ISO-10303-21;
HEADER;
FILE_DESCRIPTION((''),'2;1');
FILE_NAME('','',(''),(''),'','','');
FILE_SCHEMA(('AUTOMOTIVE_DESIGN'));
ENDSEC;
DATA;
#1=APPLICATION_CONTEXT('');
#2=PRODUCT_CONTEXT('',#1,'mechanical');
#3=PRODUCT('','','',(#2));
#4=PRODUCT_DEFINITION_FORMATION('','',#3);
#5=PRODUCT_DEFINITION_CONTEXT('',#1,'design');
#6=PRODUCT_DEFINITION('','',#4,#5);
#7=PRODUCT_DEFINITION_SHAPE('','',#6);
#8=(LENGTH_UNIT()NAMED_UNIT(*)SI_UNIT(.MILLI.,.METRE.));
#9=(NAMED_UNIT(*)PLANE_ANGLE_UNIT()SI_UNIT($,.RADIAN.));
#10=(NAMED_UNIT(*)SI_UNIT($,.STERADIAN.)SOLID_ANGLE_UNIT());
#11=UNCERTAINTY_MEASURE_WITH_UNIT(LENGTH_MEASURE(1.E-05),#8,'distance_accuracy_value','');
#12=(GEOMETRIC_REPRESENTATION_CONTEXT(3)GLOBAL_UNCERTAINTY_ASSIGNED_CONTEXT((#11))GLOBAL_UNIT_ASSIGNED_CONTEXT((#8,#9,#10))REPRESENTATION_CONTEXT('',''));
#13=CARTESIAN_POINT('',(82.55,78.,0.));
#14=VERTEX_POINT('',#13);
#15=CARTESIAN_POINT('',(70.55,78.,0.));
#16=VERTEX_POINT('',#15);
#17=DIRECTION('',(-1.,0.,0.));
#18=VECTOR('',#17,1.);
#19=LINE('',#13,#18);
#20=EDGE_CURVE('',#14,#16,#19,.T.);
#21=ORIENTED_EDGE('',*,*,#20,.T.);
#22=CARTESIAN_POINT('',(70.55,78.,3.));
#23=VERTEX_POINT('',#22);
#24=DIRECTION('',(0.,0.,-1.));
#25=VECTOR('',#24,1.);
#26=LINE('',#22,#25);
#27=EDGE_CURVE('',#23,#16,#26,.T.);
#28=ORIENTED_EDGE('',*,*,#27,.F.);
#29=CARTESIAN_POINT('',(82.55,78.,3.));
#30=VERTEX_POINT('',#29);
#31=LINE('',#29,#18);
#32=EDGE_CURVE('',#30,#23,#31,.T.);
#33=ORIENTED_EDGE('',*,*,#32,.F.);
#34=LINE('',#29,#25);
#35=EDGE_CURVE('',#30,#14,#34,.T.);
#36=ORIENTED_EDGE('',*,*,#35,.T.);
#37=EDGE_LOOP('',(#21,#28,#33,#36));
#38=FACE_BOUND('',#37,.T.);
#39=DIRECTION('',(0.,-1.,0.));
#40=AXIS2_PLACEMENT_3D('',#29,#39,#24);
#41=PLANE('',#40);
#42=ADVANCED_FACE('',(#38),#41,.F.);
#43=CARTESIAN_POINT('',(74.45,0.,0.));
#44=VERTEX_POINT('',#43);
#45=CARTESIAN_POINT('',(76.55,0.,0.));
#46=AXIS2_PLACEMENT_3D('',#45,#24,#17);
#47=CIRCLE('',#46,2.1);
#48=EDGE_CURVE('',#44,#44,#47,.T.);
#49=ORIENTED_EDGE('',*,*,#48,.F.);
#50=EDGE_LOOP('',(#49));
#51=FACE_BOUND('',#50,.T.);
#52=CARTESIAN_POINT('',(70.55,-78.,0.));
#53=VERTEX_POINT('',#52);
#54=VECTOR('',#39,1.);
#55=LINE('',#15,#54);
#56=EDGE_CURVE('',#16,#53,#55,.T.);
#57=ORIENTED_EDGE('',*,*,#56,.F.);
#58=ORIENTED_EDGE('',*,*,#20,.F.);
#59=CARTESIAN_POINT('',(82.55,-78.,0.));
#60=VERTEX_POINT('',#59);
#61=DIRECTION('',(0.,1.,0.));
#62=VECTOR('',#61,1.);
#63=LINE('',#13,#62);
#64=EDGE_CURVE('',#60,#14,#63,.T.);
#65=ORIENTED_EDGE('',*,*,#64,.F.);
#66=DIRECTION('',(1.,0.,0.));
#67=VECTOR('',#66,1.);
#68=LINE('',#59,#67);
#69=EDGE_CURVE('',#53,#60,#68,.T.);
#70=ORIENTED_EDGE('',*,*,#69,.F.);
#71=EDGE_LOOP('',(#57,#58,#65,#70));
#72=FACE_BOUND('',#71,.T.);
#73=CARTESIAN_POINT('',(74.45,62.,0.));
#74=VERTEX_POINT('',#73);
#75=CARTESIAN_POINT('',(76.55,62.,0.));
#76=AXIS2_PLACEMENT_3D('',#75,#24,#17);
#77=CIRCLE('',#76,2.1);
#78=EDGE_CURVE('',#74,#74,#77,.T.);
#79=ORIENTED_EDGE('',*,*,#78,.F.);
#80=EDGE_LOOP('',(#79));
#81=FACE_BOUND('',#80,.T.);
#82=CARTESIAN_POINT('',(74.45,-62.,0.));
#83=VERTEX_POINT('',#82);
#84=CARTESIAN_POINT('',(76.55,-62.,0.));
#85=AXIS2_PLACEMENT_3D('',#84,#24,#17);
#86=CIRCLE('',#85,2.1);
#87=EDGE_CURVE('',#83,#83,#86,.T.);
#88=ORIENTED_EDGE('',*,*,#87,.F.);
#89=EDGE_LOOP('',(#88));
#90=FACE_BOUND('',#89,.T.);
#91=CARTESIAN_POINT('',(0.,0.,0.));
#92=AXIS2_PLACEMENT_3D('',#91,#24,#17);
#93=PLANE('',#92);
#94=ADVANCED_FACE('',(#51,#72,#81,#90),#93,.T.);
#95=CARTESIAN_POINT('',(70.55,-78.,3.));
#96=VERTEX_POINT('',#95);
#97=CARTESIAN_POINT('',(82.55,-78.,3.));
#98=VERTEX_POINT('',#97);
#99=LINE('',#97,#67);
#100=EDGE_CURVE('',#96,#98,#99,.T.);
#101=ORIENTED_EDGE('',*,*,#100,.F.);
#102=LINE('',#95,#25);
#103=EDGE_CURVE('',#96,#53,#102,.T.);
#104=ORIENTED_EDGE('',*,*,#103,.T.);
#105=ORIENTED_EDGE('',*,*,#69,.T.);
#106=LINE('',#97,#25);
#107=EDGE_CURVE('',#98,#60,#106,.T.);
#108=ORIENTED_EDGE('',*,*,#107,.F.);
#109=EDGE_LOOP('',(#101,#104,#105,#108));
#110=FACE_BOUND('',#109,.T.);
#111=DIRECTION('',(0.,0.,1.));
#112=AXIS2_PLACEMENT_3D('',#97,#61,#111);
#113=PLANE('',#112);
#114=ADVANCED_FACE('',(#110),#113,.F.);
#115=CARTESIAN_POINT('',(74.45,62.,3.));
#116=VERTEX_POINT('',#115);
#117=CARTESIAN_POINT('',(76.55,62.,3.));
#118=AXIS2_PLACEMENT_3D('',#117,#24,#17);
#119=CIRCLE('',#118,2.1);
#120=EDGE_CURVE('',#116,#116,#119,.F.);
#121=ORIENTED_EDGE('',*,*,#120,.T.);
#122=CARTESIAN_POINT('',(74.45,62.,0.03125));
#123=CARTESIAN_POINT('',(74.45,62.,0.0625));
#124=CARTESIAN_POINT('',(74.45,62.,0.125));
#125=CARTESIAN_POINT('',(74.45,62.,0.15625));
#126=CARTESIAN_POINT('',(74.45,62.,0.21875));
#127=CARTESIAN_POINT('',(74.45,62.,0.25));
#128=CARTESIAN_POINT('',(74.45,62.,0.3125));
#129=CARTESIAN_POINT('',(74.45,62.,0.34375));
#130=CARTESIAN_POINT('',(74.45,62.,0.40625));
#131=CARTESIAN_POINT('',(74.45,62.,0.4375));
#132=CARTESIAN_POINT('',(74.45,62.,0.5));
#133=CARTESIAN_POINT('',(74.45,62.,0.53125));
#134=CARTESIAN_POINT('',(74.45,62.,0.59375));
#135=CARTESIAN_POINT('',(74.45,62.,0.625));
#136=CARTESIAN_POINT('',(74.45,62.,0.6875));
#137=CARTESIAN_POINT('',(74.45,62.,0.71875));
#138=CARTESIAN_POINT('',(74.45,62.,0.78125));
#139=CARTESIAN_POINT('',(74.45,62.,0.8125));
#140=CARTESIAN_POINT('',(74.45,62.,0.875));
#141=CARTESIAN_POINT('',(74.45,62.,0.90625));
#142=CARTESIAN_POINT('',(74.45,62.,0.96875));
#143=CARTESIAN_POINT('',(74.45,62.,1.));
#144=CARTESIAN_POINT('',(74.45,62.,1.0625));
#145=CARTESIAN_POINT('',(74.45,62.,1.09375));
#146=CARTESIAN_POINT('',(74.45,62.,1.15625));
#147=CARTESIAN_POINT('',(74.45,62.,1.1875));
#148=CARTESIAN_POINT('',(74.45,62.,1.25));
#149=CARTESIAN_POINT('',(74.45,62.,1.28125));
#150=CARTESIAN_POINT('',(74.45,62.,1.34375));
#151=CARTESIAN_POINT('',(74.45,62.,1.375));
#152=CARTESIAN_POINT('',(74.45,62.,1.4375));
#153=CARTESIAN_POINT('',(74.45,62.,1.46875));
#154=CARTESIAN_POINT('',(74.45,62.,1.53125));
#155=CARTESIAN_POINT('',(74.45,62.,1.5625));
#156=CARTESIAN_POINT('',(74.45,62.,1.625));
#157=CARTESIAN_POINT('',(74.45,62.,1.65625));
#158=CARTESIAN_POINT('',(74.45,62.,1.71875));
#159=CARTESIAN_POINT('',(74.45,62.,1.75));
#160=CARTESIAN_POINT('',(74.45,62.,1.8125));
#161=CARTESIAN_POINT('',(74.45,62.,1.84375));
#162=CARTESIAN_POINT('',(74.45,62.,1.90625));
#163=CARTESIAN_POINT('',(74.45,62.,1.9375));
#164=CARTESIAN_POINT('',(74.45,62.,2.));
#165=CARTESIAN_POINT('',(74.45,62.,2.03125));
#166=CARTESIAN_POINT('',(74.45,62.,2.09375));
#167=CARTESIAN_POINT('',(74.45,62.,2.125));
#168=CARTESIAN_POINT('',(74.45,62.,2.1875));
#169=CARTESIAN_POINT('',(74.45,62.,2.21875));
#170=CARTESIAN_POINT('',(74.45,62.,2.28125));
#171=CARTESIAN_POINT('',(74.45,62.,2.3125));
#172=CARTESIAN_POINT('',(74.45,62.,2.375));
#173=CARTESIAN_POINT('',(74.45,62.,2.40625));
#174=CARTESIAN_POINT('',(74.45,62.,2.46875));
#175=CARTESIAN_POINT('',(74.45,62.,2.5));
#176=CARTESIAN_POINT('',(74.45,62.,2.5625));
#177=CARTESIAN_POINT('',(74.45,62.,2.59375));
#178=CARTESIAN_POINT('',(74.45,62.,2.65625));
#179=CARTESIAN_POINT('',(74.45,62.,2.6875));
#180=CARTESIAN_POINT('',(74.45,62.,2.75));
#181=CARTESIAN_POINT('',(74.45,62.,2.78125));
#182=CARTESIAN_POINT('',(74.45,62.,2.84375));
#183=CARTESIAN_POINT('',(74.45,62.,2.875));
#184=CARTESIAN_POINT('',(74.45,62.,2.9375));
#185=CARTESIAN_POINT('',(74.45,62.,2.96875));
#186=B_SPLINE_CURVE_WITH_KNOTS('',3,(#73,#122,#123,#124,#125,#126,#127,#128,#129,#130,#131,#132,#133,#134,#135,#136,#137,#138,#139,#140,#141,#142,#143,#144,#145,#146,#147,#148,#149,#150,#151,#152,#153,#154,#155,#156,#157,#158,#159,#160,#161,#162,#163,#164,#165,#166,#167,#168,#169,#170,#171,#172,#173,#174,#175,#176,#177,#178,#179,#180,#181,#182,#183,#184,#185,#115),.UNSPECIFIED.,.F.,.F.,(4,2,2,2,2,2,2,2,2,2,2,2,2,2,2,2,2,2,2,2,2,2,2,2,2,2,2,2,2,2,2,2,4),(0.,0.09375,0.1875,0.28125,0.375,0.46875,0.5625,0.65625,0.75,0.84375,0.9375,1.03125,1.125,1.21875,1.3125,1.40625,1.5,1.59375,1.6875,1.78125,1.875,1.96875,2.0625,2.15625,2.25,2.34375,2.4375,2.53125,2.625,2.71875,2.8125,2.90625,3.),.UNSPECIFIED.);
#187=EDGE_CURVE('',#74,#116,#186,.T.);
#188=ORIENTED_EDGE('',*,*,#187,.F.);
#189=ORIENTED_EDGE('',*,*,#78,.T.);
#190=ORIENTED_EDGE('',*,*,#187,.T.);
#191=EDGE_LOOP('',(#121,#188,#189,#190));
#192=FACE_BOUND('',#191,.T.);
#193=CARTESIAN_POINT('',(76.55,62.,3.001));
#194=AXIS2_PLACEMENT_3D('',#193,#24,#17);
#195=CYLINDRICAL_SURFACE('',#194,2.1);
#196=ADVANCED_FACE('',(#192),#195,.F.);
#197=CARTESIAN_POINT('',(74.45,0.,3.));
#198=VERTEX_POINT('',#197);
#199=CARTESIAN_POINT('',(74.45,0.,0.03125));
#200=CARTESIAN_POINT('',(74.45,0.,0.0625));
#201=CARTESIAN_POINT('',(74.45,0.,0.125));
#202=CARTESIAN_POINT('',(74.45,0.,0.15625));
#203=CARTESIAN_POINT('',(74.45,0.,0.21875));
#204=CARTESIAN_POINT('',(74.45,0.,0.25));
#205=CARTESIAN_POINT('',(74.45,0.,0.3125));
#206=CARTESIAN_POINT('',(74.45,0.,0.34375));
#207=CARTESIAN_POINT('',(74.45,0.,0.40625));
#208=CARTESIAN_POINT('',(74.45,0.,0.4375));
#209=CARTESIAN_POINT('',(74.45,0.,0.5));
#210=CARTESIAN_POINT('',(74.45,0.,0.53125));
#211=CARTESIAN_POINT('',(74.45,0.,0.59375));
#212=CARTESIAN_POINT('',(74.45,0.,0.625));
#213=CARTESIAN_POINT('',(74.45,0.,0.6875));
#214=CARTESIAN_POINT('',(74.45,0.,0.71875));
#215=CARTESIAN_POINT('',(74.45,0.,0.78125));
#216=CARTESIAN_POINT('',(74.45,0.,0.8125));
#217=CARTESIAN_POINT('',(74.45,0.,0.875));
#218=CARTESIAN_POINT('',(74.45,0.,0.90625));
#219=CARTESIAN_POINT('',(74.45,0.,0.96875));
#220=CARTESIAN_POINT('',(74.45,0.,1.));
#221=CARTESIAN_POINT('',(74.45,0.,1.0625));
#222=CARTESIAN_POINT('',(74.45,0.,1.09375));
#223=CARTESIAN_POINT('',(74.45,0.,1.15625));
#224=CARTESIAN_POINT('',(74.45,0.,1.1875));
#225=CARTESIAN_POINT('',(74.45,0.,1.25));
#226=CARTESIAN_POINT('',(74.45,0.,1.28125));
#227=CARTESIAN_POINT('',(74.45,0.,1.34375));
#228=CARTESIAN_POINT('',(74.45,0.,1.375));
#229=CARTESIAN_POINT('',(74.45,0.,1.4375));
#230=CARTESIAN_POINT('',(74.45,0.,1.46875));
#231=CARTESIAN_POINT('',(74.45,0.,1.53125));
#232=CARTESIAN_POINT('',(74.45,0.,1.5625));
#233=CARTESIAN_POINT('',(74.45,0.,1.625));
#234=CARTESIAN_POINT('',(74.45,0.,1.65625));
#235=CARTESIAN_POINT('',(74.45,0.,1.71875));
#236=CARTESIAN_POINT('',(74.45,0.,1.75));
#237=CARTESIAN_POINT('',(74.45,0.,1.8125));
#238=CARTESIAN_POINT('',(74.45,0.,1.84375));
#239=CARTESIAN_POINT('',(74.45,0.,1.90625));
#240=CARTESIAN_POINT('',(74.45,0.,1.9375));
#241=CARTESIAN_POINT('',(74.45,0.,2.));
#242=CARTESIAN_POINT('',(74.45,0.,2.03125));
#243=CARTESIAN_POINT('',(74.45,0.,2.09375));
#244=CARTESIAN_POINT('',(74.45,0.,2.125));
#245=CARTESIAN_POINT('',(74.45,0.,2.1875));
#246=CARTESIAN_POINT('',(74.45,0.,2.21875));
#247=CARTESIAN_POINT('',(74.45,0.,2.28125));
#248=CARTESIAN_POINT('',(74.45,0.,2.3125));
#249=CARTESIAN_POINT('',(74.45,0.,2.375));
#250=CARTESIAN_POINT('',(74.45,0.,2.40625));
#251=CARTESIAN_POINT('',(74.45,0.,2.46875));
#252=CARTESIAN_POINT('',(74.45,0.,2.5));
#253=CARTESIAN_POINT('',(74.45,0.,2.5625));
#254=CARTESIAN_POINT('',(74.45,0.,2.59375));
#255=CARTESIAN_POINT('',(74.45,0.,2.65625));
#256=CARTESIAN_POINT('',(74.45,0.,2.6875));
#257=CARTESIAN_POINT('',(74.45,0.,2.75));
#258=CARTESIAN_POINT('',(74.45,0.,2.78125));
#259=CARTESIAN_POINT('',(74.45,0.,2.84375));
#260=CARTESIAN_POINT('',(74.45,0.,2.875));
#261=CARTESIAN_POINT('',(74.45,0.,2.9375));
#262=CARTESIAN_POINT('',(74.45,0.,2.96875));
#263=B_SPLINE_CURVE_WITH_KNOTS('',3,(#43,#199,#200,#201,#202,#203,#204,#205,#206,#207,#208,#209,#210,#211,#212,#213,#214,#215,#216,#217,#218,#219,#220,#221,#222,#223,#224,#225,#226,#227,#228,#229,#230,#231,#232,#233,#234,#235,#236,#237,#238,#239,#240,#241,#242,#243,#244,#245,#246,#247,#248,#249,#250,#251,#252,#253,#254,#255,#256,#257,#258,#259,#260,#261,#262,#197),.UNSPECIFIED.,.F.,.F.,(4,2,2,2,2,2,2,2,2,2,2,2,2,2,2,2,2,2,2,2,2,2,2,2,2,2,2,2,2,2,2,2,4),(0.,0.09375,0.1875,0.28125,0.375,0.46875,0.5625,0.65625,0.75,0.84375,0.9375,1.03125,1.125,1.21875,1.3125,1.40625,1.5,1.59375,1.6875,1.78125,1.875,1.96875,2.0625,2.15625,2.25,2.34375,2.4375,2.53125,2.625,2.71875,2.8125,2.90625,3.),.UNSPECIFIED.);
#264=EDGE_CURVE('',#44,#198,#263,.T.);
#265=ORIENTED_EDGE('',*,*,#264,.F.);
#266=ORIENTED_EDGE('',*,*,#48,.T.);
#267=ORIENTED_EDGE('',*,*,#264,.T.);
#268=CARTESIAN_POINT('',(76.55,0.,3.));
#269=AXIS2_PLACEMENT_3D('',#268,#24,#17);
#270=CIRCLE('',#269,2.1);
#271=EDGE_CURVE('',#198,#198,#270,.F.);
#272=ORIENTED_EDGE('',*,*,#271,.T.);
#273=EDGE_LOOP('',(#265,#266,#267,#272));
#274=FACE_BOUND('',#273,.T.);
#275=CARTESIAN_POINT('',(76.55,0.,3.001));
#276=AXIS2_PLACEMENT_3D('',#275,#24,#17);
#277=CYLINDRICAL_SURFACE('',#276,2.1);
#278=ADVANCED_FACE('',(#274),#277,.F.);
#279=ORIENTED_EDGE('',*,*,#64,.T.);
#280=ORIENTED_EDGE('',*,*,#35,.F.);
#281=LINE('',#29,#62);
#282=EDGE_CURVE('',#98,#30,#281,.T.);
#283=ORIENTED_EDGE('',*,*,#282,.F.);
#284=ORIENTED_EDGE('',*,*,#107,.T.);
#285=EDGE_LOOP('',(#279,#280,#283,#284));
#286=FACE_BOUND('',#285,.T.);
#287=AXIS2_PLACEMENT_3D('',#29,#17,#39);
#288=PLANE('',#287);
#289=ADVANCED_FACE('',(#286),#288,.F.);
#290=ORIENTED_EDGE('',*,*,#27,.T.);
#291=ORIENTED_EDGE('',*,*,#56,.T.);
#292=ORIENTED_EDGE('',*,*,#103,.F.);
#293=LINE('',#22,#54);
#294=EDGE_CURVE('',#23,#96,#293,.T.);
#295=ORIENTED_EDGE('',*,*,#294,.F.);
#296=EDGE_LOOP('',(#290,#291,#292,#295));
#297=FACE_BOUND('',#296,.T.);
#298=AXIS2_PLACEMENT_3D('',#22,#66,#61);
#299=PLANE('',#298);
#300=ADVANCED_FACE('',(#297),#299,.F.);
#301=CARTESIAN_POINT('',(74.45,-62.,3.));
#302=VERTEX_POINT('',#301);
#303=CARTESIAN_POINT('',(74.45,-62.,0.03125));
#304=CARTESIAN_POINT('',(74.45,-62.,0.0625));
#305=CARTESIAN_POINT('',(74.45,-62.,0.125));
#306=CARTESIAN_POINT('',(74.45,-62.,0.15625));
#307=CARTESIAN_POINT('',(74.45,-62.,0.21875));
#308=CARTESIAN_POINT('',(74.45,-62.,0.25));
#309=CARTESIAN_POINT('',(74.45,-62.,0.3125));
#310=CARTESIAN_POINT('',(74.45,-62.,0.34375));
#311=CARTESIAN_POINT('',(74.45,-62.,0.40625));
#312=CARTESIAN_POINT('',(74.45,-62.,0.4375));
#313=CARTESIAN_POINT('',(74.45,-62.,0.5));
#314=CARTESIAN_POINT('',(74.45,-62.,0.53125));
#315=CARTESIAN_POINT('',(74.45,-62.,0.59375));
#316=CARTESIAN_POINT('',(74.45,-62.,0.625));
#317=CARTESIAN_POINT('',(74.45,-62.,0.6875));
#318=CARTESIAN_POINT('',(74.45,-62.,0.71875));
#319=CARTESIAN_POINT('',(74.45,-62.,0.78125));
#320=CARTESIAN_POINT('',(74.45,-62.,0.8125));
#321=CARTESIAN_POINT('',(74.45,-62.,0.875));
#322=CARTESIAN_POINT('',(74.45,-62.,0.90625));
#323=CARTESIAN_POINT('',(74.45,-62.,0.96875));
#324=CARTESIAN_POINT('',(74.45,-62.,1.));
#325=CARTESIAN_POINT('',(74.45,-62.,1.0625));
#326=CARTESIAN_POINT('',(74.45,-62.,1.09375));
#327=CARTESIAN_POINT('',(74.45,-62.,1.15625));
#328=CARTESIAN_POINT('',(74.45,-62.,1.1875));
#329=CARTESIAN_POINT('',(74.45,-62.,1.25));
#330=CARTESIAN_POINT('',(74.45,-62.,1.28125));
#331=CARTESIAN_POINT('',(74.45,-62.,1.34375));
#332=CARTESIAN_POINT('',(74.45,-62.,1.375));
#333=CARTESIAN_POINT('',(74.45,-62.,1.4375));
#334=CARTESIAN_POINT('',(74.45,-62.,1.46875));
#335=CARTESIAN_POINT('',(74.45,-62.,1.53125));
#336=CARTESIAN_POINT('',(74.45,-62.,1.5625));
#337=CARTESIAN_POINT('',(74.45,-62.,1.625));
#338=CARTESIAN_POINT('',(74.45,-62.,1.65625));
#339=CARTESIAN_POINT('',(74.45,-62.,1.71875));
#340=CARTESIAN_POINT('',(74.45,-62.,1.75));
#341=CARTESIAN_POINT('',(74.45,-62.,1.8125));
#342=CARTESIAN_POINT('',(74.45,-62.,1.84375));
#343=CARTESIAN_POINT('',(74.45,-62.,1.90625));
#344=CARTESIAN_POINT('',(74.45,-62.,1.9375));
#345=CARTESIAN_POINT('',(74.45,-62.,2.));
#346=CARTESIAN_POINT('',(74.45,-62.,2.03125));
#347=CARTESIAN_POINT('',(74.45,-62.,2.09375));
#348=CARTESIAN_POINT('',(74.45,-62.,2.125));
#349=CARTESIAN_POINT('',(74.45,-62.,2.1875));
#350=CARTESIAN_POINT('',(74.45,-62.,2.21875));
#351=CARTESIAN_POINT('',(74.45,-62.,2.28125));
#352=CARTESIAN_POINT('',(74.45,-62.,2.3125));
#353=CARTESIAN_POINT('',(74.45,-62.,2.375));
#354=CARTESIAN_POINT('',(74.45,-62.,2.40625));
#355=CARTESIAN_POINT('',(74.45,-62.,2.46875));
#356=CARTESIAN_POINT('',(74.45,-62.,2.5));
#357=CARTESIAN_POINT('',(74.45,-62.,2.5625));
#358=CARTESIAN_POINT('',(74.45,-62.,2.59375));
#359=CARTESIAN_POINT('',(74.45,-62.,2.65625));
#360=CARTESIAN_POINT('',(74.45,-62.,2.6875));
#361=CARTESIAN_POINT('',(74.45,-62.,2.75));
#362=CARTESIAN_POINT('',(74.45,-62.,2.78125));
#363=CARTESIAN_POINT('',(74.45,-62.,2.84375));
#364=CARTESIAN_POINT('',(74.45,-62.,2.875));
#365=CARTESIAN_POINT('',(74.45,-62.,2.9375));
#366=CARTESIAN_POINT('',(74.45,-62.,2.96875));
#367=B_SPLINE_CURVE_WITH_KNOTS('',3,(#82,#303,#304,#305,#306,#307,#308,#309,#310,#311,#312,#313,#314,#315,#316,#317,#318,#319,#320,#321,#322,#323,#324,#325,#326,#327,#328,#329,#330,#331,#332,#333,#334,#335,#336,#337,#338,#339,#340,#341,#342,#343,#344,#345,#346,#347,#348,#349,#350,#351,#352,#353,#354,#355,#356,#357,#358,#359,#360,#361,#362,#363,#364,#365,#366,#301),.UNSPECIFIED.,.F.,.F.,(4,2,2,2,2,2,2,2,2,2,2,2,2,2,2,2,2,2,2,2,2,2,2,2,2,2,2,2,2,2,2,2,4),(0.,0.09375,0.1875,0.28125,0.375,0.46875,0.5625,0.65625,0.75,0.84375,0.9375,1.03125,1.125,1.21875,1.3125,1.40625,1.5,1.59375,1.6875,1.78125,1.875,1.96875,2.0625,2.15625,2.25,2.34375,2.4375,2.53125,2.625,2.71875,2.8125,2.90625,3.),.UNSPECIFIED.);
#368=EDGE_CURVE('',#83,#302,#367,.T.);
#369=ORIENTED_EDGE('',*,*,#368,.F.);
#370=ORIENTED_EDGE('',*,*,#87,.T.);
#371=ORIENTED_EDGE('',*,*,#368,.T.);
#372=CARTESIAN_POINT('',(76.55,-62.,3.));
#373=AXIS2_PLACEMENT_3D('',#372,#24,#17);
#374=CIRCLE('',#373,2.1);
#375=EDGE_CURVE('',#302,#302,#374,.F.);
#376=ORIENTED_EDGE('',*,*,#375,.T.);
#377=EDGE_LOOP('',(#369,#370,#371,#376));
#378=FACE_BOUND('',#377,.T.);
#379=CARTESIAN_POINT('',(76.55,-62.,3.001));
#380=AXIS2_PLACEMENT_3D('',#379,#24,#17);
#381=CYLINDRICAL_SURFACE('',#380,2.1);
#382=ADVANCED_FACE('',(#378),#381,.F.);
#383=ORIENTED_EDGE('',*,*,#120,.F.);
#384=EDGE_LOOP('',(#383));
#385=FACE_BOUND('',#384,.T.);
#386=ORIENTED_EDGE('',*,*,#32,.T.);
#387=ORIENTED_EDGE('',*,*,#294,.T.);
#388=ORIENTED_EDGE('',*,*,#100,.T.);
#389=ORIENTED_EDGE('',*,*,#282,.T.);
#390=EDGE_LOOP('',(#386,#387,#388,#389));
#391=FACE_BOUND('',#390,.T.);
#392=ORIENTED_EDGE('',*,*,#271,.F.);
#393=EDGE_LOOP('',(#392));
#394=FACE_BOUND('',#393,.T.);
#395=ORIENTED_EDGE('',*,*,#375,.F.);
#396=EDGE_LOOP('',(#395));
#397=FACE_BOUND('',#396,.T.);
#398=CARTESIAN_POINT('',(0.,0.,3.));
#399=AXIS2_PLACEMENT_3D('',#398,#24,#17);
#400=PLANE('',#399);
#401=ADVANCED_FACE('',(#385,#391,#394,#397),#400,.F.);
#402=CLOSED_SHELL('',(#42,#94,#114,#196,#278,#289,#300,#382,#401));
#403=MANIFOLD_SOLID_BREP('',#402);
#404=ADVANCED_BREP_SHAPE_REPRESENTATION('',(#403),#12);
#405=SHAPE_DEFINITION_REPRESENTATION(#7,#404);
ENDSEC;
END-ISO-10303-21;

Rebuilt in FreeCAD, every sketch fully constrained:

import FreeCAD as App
import Part
import Sketcher

V = App.Vector
Q = App.Units.Quantity

doc = App.newDocument("Part")
body = doc.addObject("PartDesign::Body", "Body")

# Sketch on XY plane
sketch1 = body.newObject("Sketcher::SketchObject", "Sketch")
sketch1.AttachmentSupport = (doc.getObject("XY_Plane"), [""])
sketch1.MapMode = "FlatFace"
sketch1.addGeometry(Part.LineSegment(V(70.55, 78, 0), V(70.55, -78, 0)), False)
sketch1.addGeometry(Part.LineSegment(V(70.55, -78, 0), V(82.55, -78, 0)), False)
sketch1.addGeometry(Part.LineSegment(V(82.55, -78, 0), V(82.55, 78, 0)), False)
sketch1.addGeometry(Part.LineSegment(V(82.55, 78, 0), V(70.55, 78, 0)), False)
sketch1.addConstraint(Sketcher.Constraint("Coincident", 0, 2, 1, 1))
sketch1.addConstraint(Sketcher.Constraint("Coincident", 1, 2, 2, 1))
sketch1.addConstraint(Sketcher.Constraint("Coincident", 2, 2, 3, 1))
sketch1.addConstraint(Sketcher.Constraint("Coincident", 3, 2, 0, 1))
sketch1.addConstraint(Sketcher.Constraint("Vertical", 0))
sketch1.addConstraint(Sketcher.Constraint("Horizontal", 1))
sketch1.addConstraint(Sketcher.Constraint("Vertical", 2))
sketch1.addConstraint(Sketcher.Constraint("Horizontal", 3))
sketch1.addConstraint(Sketcher.Constraint("DistanceX", 1, 1, 1, 2, Q("12 mm")))
sketch1.addConstraint(Sketcher.Constraint("DistanceY", 0, 2, 0, 1, Q("156 mm")))
sketch1.addConstraint(Sketcher.Constraint("DistanceY", 0, 2, -1, 1, Q("78 mm")))
sketch1.addConstraint(Sketcher.Constraint("DistanceX", -1, 1, 0, 2, Q("70.55 mm")))
pad1 = body.newObject("PartDesign::Pad", "Pad")
pad1.Profile = sketch1
pad1.Length = 3

# Sketch on XY plane
sketch2 = body.newObject("Sketcher::SketchObject", "Sketch001")
sketch2.AttachmentSupport = (doc.getObject("XY_Plane"), [""])
sketch2.MapMode = "FlatFace"
sketch2.addGeometry(Part.Circle(V(76.55, -62, 0), V(0, 0, 1), 2.1), False)
sketch2.addConstraint(Sketcher.Constraint("Diameter", 0, Q("4.2 mm")))
sketch2.addConstraint(Sketcher.Constraint("DistanceY", 0, 3, -1, 1, Q("62 mm")))
sketch2.addConstraint(Sketcher.Constraint("DistanceX", -1, 1, 0, 3, Q("76.55 mm")))
pocket1 = body.newObject("PartDesign::Pocket", "Pocket")
pocket1.Profile = sketch2
pocket1.Type = "UpToFirst"
pocket1.Reversed = True

# Sketch on XY plane
sketch3 = body.newObject("Sketcher::SketchObject", "Sketch002")
sketch3.AttachmentSupport = (doc.getObject("XY_Plane"), [""])
sketch3.MapMode = "FlatFace"
sketch3.addGeometry(Part.Circle(V(76.55, 0, 0), V(0, 0, 1), 2.1), False)
sketch3.addConstraint(Sketcher.Constraint("PointOnObject", 0, 3, -1))
sketch3.addConstraint(Sketcher.Constraint("Diameter", 0, Q("4.2 mm")))
sketch3.addConstraint(Sketcher.Constraint("DistanceX", -1, 1, 0, 3, Q("76.55 mm")))
pocket2 = body.newObject("PartDesign::Pocket", "Pocket001")
pocket2.Profile = sketch3
pocket2.Type = "UpToFirst"
pocket2.Reversed = True

# Sketch on XY plane
sketch4 = body.newObject("Sketcher::SketchObject", "Sketch003")
sketch4.AttachmentSupport = (doc.getObject("XY_Plane"), [""])
sketch4.MapMode = "FlatFace"
sketch4.addGeometry(Part.Circle(V(76.55, 62, 0), V(0, 0, 1), 2.1), False)
sketch4.addConstraint(Sketcher.Constraint("Diameter", 0, Q("4.2 mm")))
sketch4.addConstraint(Sketcher.Constraint("DistanceY", -1, 1, 0, 3, Q("62 mm")))
sketch4.addConstraint(Sketcher.Constraint("DistanceX", -1, 1, 0, 3, Q("76.55 mm")))
pocket3 = body.newObject("PartDesign::Pocket", "Pocket002")
pocket3.Profile = sketch4
pocket3.Type = "UpToFirst"
pocket3.Reversed = True

doc.recompute()
